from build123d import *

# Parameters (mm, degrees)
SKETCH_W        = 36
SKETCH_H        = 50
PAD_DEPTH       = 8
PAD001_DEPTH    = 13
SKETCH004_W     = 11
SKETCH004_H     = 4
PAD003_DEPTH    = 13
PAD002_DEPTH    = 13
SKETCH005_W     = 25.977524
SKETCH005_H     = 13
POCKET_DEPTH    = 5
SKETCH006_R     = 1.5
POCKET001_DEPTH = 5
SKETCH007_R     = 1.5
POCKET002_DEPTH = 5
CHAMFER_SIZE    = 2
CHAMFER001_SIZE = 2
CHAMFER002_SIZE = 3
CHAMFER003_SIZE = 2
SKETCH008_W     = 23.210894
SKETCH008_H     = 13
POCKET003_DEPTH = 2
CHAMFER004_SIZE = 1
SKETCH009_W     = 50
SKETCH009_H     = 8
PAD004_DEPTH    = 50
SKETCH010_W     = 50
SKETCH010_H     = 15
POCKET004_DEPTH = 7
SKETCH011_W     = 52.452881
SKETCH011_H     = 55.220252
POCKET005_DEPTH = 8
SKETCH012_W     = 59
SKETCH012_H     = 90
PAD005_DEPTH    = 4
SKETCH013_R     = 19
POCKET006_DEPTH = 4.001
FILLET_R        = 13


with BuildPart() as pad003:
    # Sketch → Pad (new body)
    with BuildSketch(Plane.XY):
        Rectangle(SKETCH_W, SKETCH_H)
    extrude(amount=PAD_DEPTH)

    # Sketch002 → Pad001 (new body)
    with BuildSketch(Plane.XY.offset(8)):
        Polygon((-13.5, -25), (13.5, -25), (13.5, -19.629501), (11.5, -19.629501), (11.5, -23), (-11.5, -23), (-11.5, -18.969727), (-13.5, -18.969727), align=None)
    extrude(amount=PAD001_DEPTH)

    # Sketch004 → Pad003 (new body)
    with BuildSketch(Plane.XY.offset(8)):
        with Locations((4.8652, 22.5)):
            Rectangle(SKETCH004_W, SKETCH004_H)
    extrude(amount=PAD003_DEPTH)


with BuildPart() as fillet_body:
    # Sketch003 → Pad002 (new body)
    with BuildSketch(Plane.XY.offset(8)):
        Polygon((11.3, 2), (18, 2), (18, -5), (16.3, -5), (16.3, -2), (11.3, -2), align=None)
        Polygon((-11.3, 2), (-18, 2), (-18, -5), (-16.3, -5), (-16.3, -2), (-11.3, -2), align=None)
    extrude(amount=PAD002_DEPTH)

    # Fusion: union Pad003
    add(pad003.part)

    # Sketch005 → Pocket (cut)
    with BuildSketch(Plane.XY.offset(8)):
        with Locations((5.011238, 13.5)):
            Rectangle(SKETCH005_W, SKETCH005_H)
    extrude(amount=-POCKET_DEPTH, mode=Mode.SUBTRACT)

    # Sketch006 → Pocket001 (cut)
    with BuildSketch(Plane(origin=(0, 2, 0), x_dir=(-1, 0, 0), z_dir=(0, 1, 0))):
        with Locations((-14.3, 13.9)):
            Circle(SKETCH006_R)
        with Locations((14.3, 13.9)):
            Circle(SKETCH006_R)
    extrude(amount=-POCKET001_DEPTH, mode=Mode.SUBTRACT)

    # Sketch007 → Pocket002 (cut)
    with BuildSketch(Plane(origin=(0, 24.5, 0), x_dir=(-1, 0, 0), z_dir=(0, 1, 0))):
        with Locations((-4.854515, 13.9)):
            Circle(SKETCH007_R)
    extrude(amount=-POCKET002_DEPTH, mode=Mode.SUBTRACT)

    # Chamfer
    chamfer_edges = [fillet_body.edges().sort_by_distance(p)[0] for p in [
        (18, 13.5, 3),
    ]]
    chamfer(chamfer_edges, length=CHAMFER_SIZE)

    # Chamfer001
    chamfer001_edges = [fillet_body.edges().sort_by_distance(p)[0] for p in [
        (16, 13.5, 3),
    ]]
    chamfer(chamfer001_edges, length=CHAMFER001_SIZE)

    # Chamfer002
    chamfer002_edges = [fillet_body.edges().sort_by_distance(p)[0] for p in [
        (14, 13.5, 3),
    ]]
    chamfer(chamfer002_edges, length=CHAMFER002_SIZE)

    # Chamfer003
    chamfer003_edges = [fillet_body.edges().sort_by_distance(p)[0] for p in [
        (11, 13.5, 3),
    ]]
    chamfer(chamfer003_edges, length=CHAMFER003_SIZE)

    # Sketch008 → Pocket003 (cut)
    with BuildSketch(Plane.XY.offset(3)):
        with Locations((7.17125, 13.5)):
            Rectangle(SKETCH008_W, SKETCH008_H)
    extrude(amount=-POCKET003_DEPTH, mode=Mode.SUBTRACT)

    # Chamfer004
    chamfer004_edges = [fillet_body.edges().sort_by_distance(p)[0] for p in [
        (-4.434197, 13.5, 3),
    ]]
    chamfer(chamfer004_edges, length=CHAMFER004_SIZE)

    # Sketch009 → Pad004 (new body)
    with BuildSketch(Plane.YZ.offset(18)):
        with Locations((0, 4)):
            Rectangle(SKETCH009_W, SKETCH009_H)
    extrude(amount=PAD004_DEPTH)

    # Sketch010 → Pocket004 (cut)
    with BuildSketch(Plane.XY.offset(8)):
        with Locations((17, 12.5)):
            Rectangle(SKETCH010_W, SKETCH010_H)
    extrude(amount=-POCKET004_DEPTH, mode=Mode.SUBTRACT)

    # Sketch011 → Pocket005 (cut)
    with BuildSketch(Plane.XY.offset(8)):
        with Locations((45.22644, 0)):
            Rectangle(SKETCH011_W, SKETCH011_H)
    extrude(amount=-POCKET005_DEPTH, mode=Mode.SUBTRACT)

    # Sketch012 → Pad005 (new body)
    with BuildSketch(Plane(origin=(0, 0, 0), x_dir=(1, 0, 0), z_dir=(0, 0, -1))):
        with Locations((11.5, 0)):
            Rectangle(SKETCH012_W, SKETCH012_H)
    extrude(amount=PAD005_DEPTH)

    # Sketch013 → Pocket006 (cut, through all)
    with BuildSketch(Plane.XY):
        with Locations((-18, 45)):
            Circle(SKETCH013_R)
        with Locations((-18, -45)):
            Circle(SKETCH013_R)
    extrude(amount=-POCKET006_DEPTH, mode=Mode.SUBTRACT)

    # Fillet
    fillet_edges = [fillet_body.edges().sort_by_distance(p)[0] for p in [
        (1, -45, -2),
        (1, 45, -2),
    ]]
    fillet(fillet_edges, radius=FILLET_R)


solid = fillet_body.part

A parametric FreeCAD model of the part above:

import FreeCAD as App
import Part
import Sketcher

V = App.Vector
Q = App.Units.Quantity


def edges_at(feature, points):
    """Names of the edges that pass closest to the given points."""
    edges = feature.Shape.Edges
    near = lambda p: min(range(len(edges)), key=lambda i: edges[i].distToShape(Part.Vertex(*p))[0])
    return sorted({f"Edge{near(p) + 1}" for p in points})

doc = App.newDocument("Part")
body = doc.addObject("PartDesign::Body", "Body")

# Sketch on XY plane
sketch1 = doc.addObject("Sketcher::SketchObject", "Sketch")
body.addObject(sketch1)
sketch1.AttachmentSupport = (doc.XY_Plane, [""])
sketch1.MapMode = "FlatFace"
sketch1.addGeometry([
    Part.LineSegment(V(-18, 25, 0), V(-18, -25, 0)),
    Part.LineSegment(V(-18, -25, 0), V(18, -25, 0)),
    Part.LineSegment(V(18, -25, 0), V(18, 25, 0)),
    Part.LineSegment(V(18, 25, 0), V(-18, 25, 0)),
], False)
sketch1.addConstraint([
    Sketcher.Constraint("Coincident", 0, 2, 1, 1),
    Sketcher.Constraint("Coincident", 1, 2, 2, 1),
    Sketcher.Constraint("Coincident", 2, 2, 3, 1),
    Sketcher.Constraint("Coincident", 3, 2, 0, 1),
    Sketcher.Constraint("Vertical", 0),
    Sketcher.Constraint("Horizontal", 1),
    Sketcher.Constraint("Vertical", 2),
    Sketcher.Constraint("Horizontal", 3),
    Sketcher.Constraint("Symmetric", 0, 2, 2, 2, -1, 1),
    Sketcher.Constraint("DistanceX", 1, 1, 1, 2, Q("36 mm")),
    Sketcher.Constraint("DistanceY", 0, 2, 0, 1, Q("50 mm")),
])
pad1 = doc.addObject("PartDesign::Pad", "Pad")
body.addObject(pad1)
pad1.Profile = sketch1
pad1.Length = 8

# Sketch on XY plane
sketch2 = doc.addObject("Sketcher::SketchObject", "Sketch001")
body.addObject(sketch2)
sketch2.AttachmentSupport = (doc.XY_Plane, [""])
sketch2.MapMode = "FlatFace"
sketch2.AttachmentOffset = App.Placement(V(0, 0, 8), App.Rotation())
sketch2.addGeometry([
    Part.LineSegment(V(-13.5, -25, 0), V(13.5, -25, 0)),  # 0
    Part.LineSegment(V(13.5, -25, 0), V(13.5, -19.6, 0)),  # 1
    Part.LineSegment(V(13.5, -19.6, 0), V(11.5, -19.6, 0)),  # 2
    Part.LineSegment(V(11.5, -19.6, 0), V(11.5, -23, 0)),  # 3
    Part.LineSegment(V(11.5, -23, 0), V(-11.5, -23, 0)),  # 4
    Part.LineSegment(V(-11.5, -23, 0), V(-11.5, -19, 0)),  # 5
    Part.LineSegment(V(-11.5, -19, 0), V(-13.5, -19, 0)),  # 6
    Part.LineSegment(V(-13.5, -19, 0), V(-13.5, -25, 0)),  # 7
], False)
sketch2.addConstraint([
    Sketcher.Constraint("Coincident", 0, 2, 1, 1),
    Sketcher.Constraint("Coincident", 1, 2, 2, 1),
    Sketcher.Constraint("Coincident", 2, 2, 3, 1),
    Sketcher.Constraint("Coincident", 3, 2, 4, 1),
    Sketcher.Constraint("Coincident", 4, 2, 5, 1),
    Sketcher.Constraint("Coincident", 5, 2, 6, 1),
    Sketcher.Constraint("Coincident", 6, 2, 7, 1),
    Sketcher.Constraint("Coincident", 7, 2, 0, 1),
    Sketcher.Constraint("Horizontal", 0),
    Sketcher.Constraint("Vertical", 1),
    Sketcher.Constraint("Horizontal", 2),
    Sketcher.Constraint("Vertical", 3),
    Sketcher.Constraint("Horizontal", 4),
    Sketcher.Constraint("Vertical", 5),
    Sketcher.Constraint("Horizontal", 6),
    Sketcher.Constraint("Vertical", 7),
    Sketcher.Constraint("Equal", 2, 6),
    Sketcher.Constraint("DistanceX", 0, 1, 0, 2, Q("27 mm")),
    Sketcher.Constraint("DistanceX", 2, 2, 2, 1, Q("2 mm")),
    Sketcher.Constraint("DistanceY", 0, 2, -1, 1, Q("25 mm")),
    Sketcher.Constraint("DistanceY", 3, 2, -1, 1, Q("23 mm")),
    Sketcher.Constraint("DistanceX", -1, 1, 0, 2, Q("13.5 mm")),
    Sketcher.Constraint("DistanceY", 1, 1, 1, 2, Q("5.370499 mm")),
    Sketcher.Constraint("DistanceY", 5, 1, 5, 2, Q("4.030273 mm")),
])
pad2 = doc.addObject("PartDesign::Pad", "Pad001")
body.addObject(pad2)
pad2.Profile = sketch2
pad2.Length = 13

# Sketch on XY plane
sketch3 = doc.addObject("Sketcher::SketchObject", "Sketch002")
body.addObject(sketch3)
sketch3.AttachmentSupport = (doc.XY_Plane, [""])
sketch3.MapMode = "FlatFace"
sketch3.AttachmentOffset = App.Placement(V(0, 0, 8), App.Rotation())
sketch3.addGeometry([
    Part.LineSegment(V(-0.6, 24.5, 0), V(-0.6, 20.5, 0)),
    Part.LineSegment(V(-0.6, 20.5, 0), V(10.4, 20.5, 0)),
    Part.LineSegment(V(10.4, 20.5, 0), V(10.4, 24.5, 0)),
    Part.LineSegment(V(10.4, 24.5, 0), V(-0.6, 24.5, 0)),
], False)
sketch3.addConstraint([
    Sketcher.Constraint("Coincident", 0, 2, 1, 1),
    Sketcher.Constraint("Coincident", 1, 2, 2, 1),
    Sketcher.Constraint("Coincident", 2, 2, 3, 1),
    Sketcher.Constraint("Coincident", 3, 2, 0, 1),
    Sketcher.Constraint("Vertical", 0),
    Sketcher.Constraint("Horizontal", 1),
    Sketcher.Constraint("Vertical", 2),
    Sketcher.Constraint("Horizontal", 3),
    Sketcher.Constraint("DistanceX", 1, 1, 1, 2, Q("11 mm")),
    Sketcher.Constraint("DistanceY", 0, 2, 0, 1, Q("4 mm")),
    Sketcher.Constraint("DistanceY", -1, 1, 0, 2, Q("20.5 mm")),
    Sketcher.Constraint("DistanceX", 0, 2, -1, 1, Q("0.6348 mm")),
])
pad3 = doc.addObject("PartDesign::Pad", "Pad002")
body.addObject(pad3)
pad3.Profile = sketch3
pad3.Length = 13
body2 = doc.addObject("PartDesign::Body", "Body001")
body2.AllowCompound = True

# Sketch on XY plane
sketch4 = doc.addObject("Sketcher::SketchObject", "Sketch003")
body2.addObject(sketch4)
sketch4.AttachmentSupport = (doc.getObject("XY_Plane001"), [""])
sketch4.MapMode = "FlatFace"
sketch4.AttachmentOffset = App.Placement(V(0, 0, 8), App.Rotation())
sketch4.addGeometry([
    Part.LineSegment(V(18, 2, 0), V(11.3, 2, 0)),  # 0
    Part.LineSegment(V(11.3, 2, 0), V(11.3, -2, 0)),  # 1
    Part.LineSegment(V(11.3, -2, 0), V(16.3, -2, 0)),  # 2
    Part.LineSegment(V(16.3, -2, 0), V(16.3, -5, 0)),  # 3
    Part.LineSegment(V(16.3, -5, 0), V(18, -5, 0)),  # 4
    Part.LineSegment(V(18, -5, 0), V(18, 2, 0)),  # 5
    Part.LineSegment(V(-11.3, 2, 0), V(-18, 2, 0)),  # 6
    Part.LineSegment(V(-18, 2, 0), V(-18, -5, 0)),  # 7
    Part.LineSegment(V(-18, -5, 0), V(-16.3, -5, 0)),  # 8
    Part.LineSegment(V(-16.3, -5, 0), V(-16.3, -2, 0)),  # 9
    Part.LineSegment(V(-16.3, -2, 0), V(-11.3, -2, 0)),  # 10
    Part.LineSegment(V(-11.3, -2, 0), V(-11.3, 2, 0)),  # 11
], False)
sketch4.addConstraint([
    Sketcher.Constraint("Coincident", 0, 2, 1, 1),
    Sketcher.Constraint("Coincident", 1, 2, 2, 1),
    Sketcher.Constraint("Coincident", 2, 2, 3, 1),
    Sketcher.Constraint("Coincident", 3, 2, 4, 1),
    Sketcher.Constraint("Coincident", 4, 2, 5, 1),
    Sketcher.Constraint("Coincident", 5, 2, 0, 1),
    Sketcher.Constraint("Coincident", 6, 2, 7, 1),
    Sketcher.Constraint("Coincident", 7, 2, 8, 1),
    Sketcher.Constraint("Coincident", 8, 2, 9, 1),
    Sketcher.Constraint("Coincident", 9, 2, 10, 1),
    Sketcher.Constraint("Coincident", 10, 2, 11, 1),
    Sketcher.Constraint("Coincident", 11, 2, 6, 1),
    Sketcher.Constraint("Horizontal", 0),
    Sketcher.Constraint("Vertical", 1),
    Sketcher.Constraint("Horizontal", 2),
    Sketcher.Constraint("Vertical", 3),
    Sketcher.Constraint("Horizontal", 4),
    Sketcher.Constraint("Vertical", 5),
    Sketcher.Constraint("Horizontal", 6),
    Sketcher.Constraint("Vertical", 7),
    Sketcher.Constraint("Horizontal", 8),
    Sketcher.Constraint("Vertical", 9),
    Sketcher.Constraint("Horizontal", 10),
    Sketcher.Constraint("Vertical", 11),
    Sketcher.Constraint("Symmetric", 0, 2, 10, 2, -1, 1),
    Sketcher.Constraint("Symmetric", 5, 2, 6, 2, -2),
    Sketcher.Constraint("Symmetric", 3, 2, 8, 2, -2),
    Sketcher.Constraint("Horizontal", 2, 2, 9, 2),
    Sketcher.Constraint("DistanceX", 2, 1, 2, 2, Q("5 mm")),
    Sketcher.Constraint("DistanceY", 1, 2, 1, 1, Q("4 mm")),
    Sketcher.Constraint("DistanceY", 3, 2, 3, 1, Q("3 mm")),
    Sketcher.Constraint("DistanceX", 0, 2, 0, 1, Q("6.7 mm")),
    Sketcher.Constraint("DistanceX", -1, 1, 4, 2, Q("18 mm")),
])
pad4 = doc.addObject("PartDesign::Pad", "Pad003")
body2.addObject(pad4)
pad4.Profile = sketch4
pad4.Length = 13
doc.recompute()

boolean = doc.addObject("PartDesign::Boolean", "Boolean")
body2.addObject(boolean)
boolean.Type = "Fuse"
boolean.addObjects([body])

# Sketch on XY plane
sketch5 = doc.addObject("Sketcher::SketchObject", "Sketch004")
body2.addObject(sketch5)
sketch5.AttachmentSupport = (doc.getObject("XY_Plane001"), [""])
sketch5.MapMode = "FlatFace"
sketch5.AttachmentOffset = App.Placement(V(0, 0, 8), App.Rotation())
sketch5.addGeometry([
    Part.LineSegment(V(-8, 20, 0), V(-8, 7, 0)),
    Part.LineSegment(V(-8, 7, 0), V(18, 7, 0)),
    Part.LineSegment(V(18, 7, 0), V(18, 20, 0)),
    Part.LineSegment(V(18, 20, 0), V(-8, 20, 0)),
], False)
sketch5.addConstraint([
    Sketcher.Constraint("Coincident", 0, 2, 1, 1),
    Sketcher.Constraint("Coincident", 1, 2, 2, 1),
    Sketcher.Constraint("Coincident", 2, 2, 3, 1),
    Sketcher.Constraint("Coincident", 3, 2, 0, 1),
    Sketcher.Constraint("Vertical", 0),
    Sketcher.Constraint("Horizontal", 1),
    Sketcher.Constraint("Vertical", 2),
    Sketcher.Constraint("Horizontal", 3),
    Sketcher.Constraint("DistanceY", 0, 2, 0, 1, Q("13 mm")),
    Sketcher.Constraint("DistanceY", -1, 1, 0, 2, Q("7 mm")),
    Sketcher.Constraint("DistanceX", -1, 1, 1, 2, Q("18 mm")),
    Sketcher.Constraint("DistanceX", 1, 1, 1, 2, Q("25.977524 mm")),
])
pocket1 = doc.addObject("PartDesign::Pocket", "Pocket")
body2.addObject(pocket1)
pocket1.Profile = sketch5
pocket1.Length = 5

# Sketch on XZ plane
sketch6 = doc.addObject("Sketcher::SketchObject", "Sketch005")
body2.addObject(sketch6)
sketch6.AttachmentSupport = (doc.getObject("XZ_Plane001"), [""])
sketch6.MapMode = "FlatFace"
sketch6.AttachmentOffset = App.Placement(V(0, 0, -2), App.Rotation())
sketch6.addGeometry([
    Part.Circle(V(14.3, 13.9, 0), V(0, 0, 1), 1.5),
    Part.Circle(V(-14.3, 13.9, 0), V(0, 0, 1), 1.5),
], False)
sketch6.addConstraint([
    Sketcher.Constraint("Equal", 0, 1),
    Sketcher.Constraint("Symmetric", 0, 3, 1, 3, -2),
    Sketcher.Constraint("Diameter", 0, Q("3 mm")),
    Sketcher.Constraint("DistanceX", -1, 1, 0, 3, Q("14.3 mm")),
    Sketcher.Constraint("DistanceY", -1, 1, 0, 3, Q("13.9 mm")),
])
pocket2 = doc.addObject("PartDesign::Pocket", "Pocket001")
body2.addObject(pocket2)
pocket2.Profile = sketch6
pocket2.Length = 5
pocket2.Reversed = True

# Sketch on XZ plane
sketch7 = doc.addObject("Sketcher::SketchObject", "Sketch006")
body2.addObject(sketch7)
sketch7.AttachmentSupport = (doc.getObject("XZ_Plane001"), [""])
sketch7.MapMode = "FlatFace"
sketch7.AttachmentOffset = App.Placement(V(0, 0, -24.5), App.Rotation())
sketch7.addGeometry(Part.Circle(V(4.9, 13.9, 0), V(0, 0, 1), 1.5), False)
sketch7.addConstraint([
    Sketcher.Constraint("Diameter", 0, Q("3 mm")),
    Sketcher.Constraint("DistanceY", -1, 1, 0, 3, Q("13.9 mm")),
    Sketcher.Constraint("DistanceX", -1, 1, 0, 3, Q("4.854515 mm")),
])
pocket3 = doc.addObject("PartDesign::Pocket", "Pocket002")
body2.addObject(pocket3)
pocket3.Profile = sketch7
pocket3.Length = 5
pocket3.Reversed = True
doc.recompute()

chamfer = doc.addObject("PartDesign::Chamfer", "Chamfer")
body2.addObject(chamfer)
chamfer.Base = (pocket3, edges_at(pocket3, [(18, 13.5, 3)]))
chamfer.Size = 2
doc.recompute()

chamfer2 = doc.addObject("PartDesign::Chamfer", "Chamfer001")
body2.addObject(chamfer2)
chamfer2.Base = (chamfer, edges_at(chamfer, [(16, 13.5, 3)]))
chamfer2.Size = 2
doc.recompute()

chamfer3 = doc.addObject("PartDesign::Chamfer", "Chamfer002")
body2.addObject(chamfer3)
chamfer3.Base = (chamfer2, edges_at(chamfer2, [(14, 13.5, 3)]))
chamfer3.Size = 3
doc.recompute()

chamfer4 = doc.addObject("PartDesign::Chamfer", "Chamfer003")
body2.addObject(chamfer4)
chamfer4.Base = (chamfer3, edges_at(chamfer3, [(11, 13.5, 3)]))
chamfer4.Size = 2

# Sketch on XY plane
sketch8 = doc.addObject("Sketcher::SketchObject", "Sketch007")
body2.addObject(sketch8)
sketch8.AttachmentSupport = (doc.getObject("XY_Plane001"), [""])
sketch8.MapMode = "FlatFace"
sketch8.AttachmentOffset = App.Placement(V(0, 0, 3), App.Rotation())
sketch8.addGeometry([
    Part.LineSegment(V(-4, 20, 0), V(-4, 7, 0)),
    Part.LineSegment(V(-4, 7, 0), V(19, 7, 0)),
    Part.LineSegment(V(19, 7, 0), V(19, 20, 0)),
    Part.LineSegment(V(19, 20, 0), V(-4, 20, 0)),
], False)
sketch8.addConstraint([
    Sketcher.Constraint("Coincident", 0, 2, 1, 1),
    Sketcher.Constraint("Coincident", 1, 2, 2, 1),
    Sketcher.Constraint("Coincident", 2, 2, 3, 1),
    Sketcher.Constraint("Coincident", 3, 2, 0, 1),
    Sketcher.Constraint("Vertical", 0),
    Sketcher.Constraint("Horizontal", 1),
    Sketcher.Constraint("Vertical", 2),
    Sketcher.Constraint("Horizontal", 3),
    Sketcher.Constraint("DistanceY", 0, 2, 0, 1, Q("13 mm")),
    Sketcher.Constraint("DistanceY", -1, 1, 0, 2, Q("7 mm")),
    Sketcher.Constraint("DistanceX", 1, 1, 1, 2, Q("23.210894 mm")),
    Sketcher.Constraint("DistanceX", 0, 2, -1, 1, Q("4.434197 mm")),
])
pocket4 = doc.addObject("PartDesign::Pocket", "Pocket003")
body2.addObject(pocket4)
pocket4.Profile = sketch8
pocket4.Length = 2
doc.recompute()

chamfer5 = doc.addObject("PartDesign::Chamfer", "Chamfer004")
body2.addObject(chamfer5)
chamfer5.Base = (pocket4, edges_at(pocket4, [(-4.434, 13.5, 3)]))
chamfer5.Size = 1

# Sketch on YZ plane
sketch9 = doc.addObject("Sketcher::SketchObject", "Sketch008")
body2.addObject(sketch9)
sketch9.AttachmentSupport = (doc.getObject("YZ_Plane001"), [""])
sketch9.MapMode = "FlatFace"
sketch9.AttachmentOffset = App.Placement(V(0, 0, 18), App.Rotation())
sketch9.addGeometry([
    Part.LineSegment(V(-25, 8, 0), V(-25, 0, 0)),
    Part.LineSegment(V(-25, 0, 0), V(25, 0, 0)),
    Part.LineSegment(V(25, 0, 0), V(25, 8, 0)),
    Part.LineSegment(V(25, 8, 0), V(-25, 8, 0)),
], False)
sketch9.addConstraint([
    Sketcher.Constraint("Coincident", 0, 2, 1, 1),
    Sketcher.Constraint("Coincident", 1, 2, 2, 1),
    Sketcher.Constraint("Coincident", 2, 2, 3, 1),
    Sketcher.Constraint("Coincident", 3, 2, 0, 1),
    Sketcher.Constraint("Vertical", 0),
    Sketcher.Constraint("Horizontal", 1),
    Sketcher.Constraint("Vertical", 2),
    Sketcher.Constraint("Horizontal", 3),
    Sketcher.Constraint("Symmetric", 0, 2, 1, 2, -1, 1),
    Sketcher.Constraint("DistanceX", 1, 1, 1, 2, Q("50 mm")),
    Sketcher.Constraint("DistanceY", 0, 2, 0, 1, Q("8 mm")),
])
pad5 = doc.addObject("PartDesign::Pad", "Pad004")
body2.addObject(pad5)
pad5.Profile = sketch9
pad5.Length = 50

# Sketch on XY plane
sketch10 = doc.addObject("Sketcher::SketchObject", "Sketch009")
body2.addObject(sketch10)
sketch10.AttachmentSupport = (doc.getObject("XY_Plane001"), [""])
sketch10.MapMode = "FlatFace"
sketch10.AttachmentOffset = App.Placement(V(0, 0, 8), App.Rotation())
sketch10.addGeometry([
    Part.LineSegment(V(-8, 20, 0), V(-8, 5, 0)),
    Part.LineSegment(V(-8, 5, 0), V(42, 5, 0)),
    Part.LineSegment(V(42, 5, 0), V(42, 20, 0)),
    Part.LineSegment(V(42, 20, 0), V(-8, 20, 0)),
], False)
sketch10.addConstraint([
    Sketcher.Constraint("Coincident", 0, 2, 1, 1),
    Sketcher.Constraint("Coincident", 1, 2, 2, 1),
    Sketcher.Constraint("Coincident", 2, 2, 3, 1),
    Sketcher.Constraint("Coincident", 3, 2, 0, 1),
    Sketcher.Constraint("Vertical", 0),
    Sketcher.Constraint("Horizontal", 1),
    Sketcher.Constraint("Vertical", 2),
    Sketcher.Constraint("Horizontal", 3),
    Sketcher.Constraint("DistanceX", 1, 1, 1, 2, Q("50 mm")),
    Sketcher.Constraint("DistanceY", 0, 2, 0, 1, Q("15 mm")),
    Sketcher.Constraint("DistanceX", 0, 2, -1, 1, Q("8 mm")),
    Sketcher.Constraint("DistanceY", -1, 1, 0, 2, Q("5 mm")),
])
pocket5 = doc.addObject("PartDesign::Pocket", "Pocket004")
body2.addObject(pocket5)
pocket5.Profile = sketch10
pocket5.Length = 7

# Sketch on XY plane
sketch11 = doc.addObject("Sketcher::SketchObject", "Sketch010")
body2.addObject(sketch11)
sketch11.AttachmentSupport = (doc.getObject("XY_Plane001"), [""])
sketch11.MapMode = "FlatFace"
sketch11.AttachmentOffset = App.Placement(V(0, 0, 8), App.Rotation())
sketch11.addGeometry([
    Part.LineSegment(V(19, 28, 0), V(19, -28, 0)),
    Part.LineSegment(V(19, -28, 0), V(71, -28, 0)),
    Part.LineSegment(V(71, -28, 0), V(71, 28, 0)),
    Part.LineSegment(V(71, 28, 0), V(19, 28, 0)),
], False)
sketch11.addConstraint([
    Sketcher.Constraint("Coincident", 0, 2, 1, 1),
    Sketcher.Constraint("Coincident", 1, 2, 2, 1),
    Sketcher.Constraint("Coincident", 2, 2, 3, 1),
    Sketcher.Constraint("Coincident", 3, 2, 0, 1),
    Sketcher.Constraint("Vertical", 0),
    Sketcher.Constraint("Horizontal", 1),
    Sketcher.Constraint("Vertical", 2),
    Sketcher.Constraint("Horizontal", 3),
    Sketcher.Constraint("DistanceX", -1, 1, 0, 2, Q("19 mm")),
    Sketcher.Constraint("DistanceX", 1, 1, 1, 2, Q("52.452881 mm")),
    Sketcher.Constraint("DistanceY", 0, 2, 0, 1, Q("55.220252 mm")),
    Sketcher.Constraint("DistanceY", 0, 2, -1, 1, Q("27.610126 mm")),
])
pocket6 = doc.addObject("PartDesign::Pocket", "Pocket005")
body2.addObject(pocket6)
pocket6.Profile = sketch11
pocket6.Length = 8

# Sketch on XY plane
sketch12 = doc.addObject("Sketcher::SketchObject", "Sketch011")
body2.addObject(sketch12)
sketch12.AttachmentSupport = (doc.getObject("XY_Plane001"), [""])
sketch12.MapMode = "FlatFace"
sketch12.addGeometry([
    Part.LineSegment(V(-18, -45, 0), V(-18, 45, 0)),
    Part.LineSegment(V(-18, 45, 0), V(41, 45, 0)),
    Part.LineSegment(V(41, 45, 0), V(41, -45, 0)),
    Part.LineSegment(V(41, -45, 0), V(-18, -45, 0)),
], False)
sketch12.addConstraint([
    Sketcher.Constraint("Coincident", 0, 2, 1, 1),
    Sketcher.Constraint("Coincident", 1, 2, 2, 1),
    Sketcher.Constraint("Coincident", 2, 2, 3, 1),
    Sketcher.Constraint("Coincident", 3, 2, 0, 1),
    Sketcher.Constraint("Vertical", 0),
    Sketcher.Constraint("Horizontal", 1),
    Sketcher.Constraint("Vertical", 2),
    Sketcher.Constraint("Horizontal", 3),
    Sketcher.Constraint("DistanceX", 1, 1, 1, 2, Q("59 mm")),
    Sketcher.Constraint("DistanceY", 0, 1, 0, 2, Q("90 mm")),
    Sketcher.Constraint("DistanceX", 0, 2, -1, 1, Q("18 mm")),
    Sketcher.Constraint("DistanceY", -1, 1, 0, 2, Q("45 mm")),
])
pad6 = doc.addObject("PartDesign::Pad", "Pad005")
body2.addObject(pad6)
pad6.Profile = sketch12
pad6.Length = 4
pad6.Reversed = True

# Sketch on XY plane
sketch13 = doc.addObject("Sketcher::SketchObject", "Sketch012")
body2.addObject(sketch13)
sketch13.AttachmentSupport = (doc.getObject("XY_Plane001"), [""])
sketch13.MapMode = "FlatFace"
sketch13.addGeometry([
    Part.Circle(V(-18, 45, 0), V(0, 0, 1), 19),
    Part.Circle(V(-18, -45, 0), V(0, 0, 1), 19),
], False)
sketch13.addConstraint([
    Sketcher.Constraint("Equal", 0, 1),
    Sketcher.Constraint("Symmetric", 0, 3, 1, 3, -1),
    Sketcher.Constraint("Diameter", 0, Q("38 mm")),
    Sketcher.Constraint("DistanceX", 0, 3, -1, 1, Q("18 mm")),
    Sketcher.Constraint("DistanceY", -1, 1, 0, 3, Q("45 mm")),
])
pocket7 = doc.addObject("PartDesign::Pocket", "Pocket006")
body2.addObject(pocket7)
pocket7.Profile = sketch13
pocket7.Type = "ThroughAll"
doc.recompute()

fillet = doc.addObject("PartDesign::Fillet", "Fillet")
body2.addObject(fillet)
fillet.Base = (pocket7, edges_at(pocket7, [(1, -45, -2), (1, 45, -2)]))
fillet.Radius = 13

doc.recompute()
